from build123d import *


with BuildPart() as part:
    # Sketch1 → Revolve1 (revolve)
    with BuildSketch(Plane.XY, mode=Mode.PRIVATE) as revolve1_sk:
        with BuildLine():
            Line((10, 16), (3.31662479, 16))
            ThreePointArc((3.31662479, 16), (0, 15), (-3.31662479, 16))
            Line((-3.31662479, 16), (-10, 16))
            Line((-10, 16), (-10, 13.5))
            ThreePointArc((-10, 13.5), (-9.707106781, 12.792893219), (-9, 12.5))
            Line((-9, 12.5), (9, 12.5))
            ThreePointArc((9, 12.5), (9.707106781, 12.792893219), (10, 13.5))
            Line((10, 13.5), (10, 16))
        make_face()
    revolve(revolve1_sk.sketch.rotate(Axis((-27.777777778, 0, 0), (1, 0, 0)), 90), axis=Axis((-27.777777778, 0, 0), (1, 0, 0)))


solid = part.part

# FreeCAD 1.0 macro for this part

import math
import FreeCAD as App
import Part
import Sketcher
from FreeCAD import Vector

doc = App.newDocument("Part")
body = doc.addObject("PartDesign::Body", "Body")

# Sketch on XY plane
sketch1 = body.newObject("Sketcher::SketchObject", "Sketch")
sketch1.AttachmentSupport = (doc.getObject("XY_Plane"), [""])
sketch1.MapMode = "FlatFace"
sketch1.addGeometry(Part.LineSegment(Vector(10, 16, 0), Vector(3.3, 16, 0)), False)
sketch1.addGeometry(Part.ArcOfCircle(Part.Circle(Vector(0, 21, 0), Vector(0, 0, 1), 6), math.radians(-124), math.radians(-56)), False)
sketch1.addGeometry(Part.LineSegment(Vector(-3.3, 16, 0), Vector(-10, 16, 0)), False)
sketch1.addGeometry(Part.LineSegment(Vector(-10, 16, 0), Vector(-10, 13.5, 0)), False)
sketch1.addGeometry(Part.ArcOfCircle(Part.Circle(Vector(-9, 13.5, 0), Vector(0, 0, 1), 1), math.radians(-180), math.radians(-90)), False)
sketch1.addGeometry(Part.LineSegment(Vector(-9, 12.5, 0), Vector(9, 12.5, 0)), False)
sketch1.addGeometry(Part.ArcOfCircle(Part.Circle(Vector(9, 13.5, 0), Vector(0, 0, 1), 1), math.radians(-90), math.radians(0)), False)
sketch1.addGeometry(Part.LineSegment(Vector(10, 13.5, 0), Vector(10, 16, 0)), False)
sketch1.addConstraint(Sketcher.Constraint("Coincident", 0, 2, 1, 2))
sketch1.addConstraint(Sketcher.Constraint("Coincident", 1, 1, 2, 1))
sketch1.addConstraint(Sketcher.Constraint("Coincident", 2, 2, 3, 1))
sketch1.addConstraint(Sketcher.Constraint("Tangent", 3, 2, 4, 1))
sketch1.addConstraint(Sketcher.Constraint("Tangent", 4, 2, 5, 1))
sketch1.addConstraint(Sketcher.Constraint("Tangent", 5, 2, 6, 1))
sketch1.addConstraint(Sketcher.Constraint("Tangent", 6, 2, 7, 1))
sketch1.addConstraint(Sketcher.Constraint("Coincident", 7, 2, 0, 1))
sketch1.addConstraint(Sketcher.Constraint("Horizontal", 0))
sketch1.addConstraint(Sketcher.Constraint("Horizontal", 2))
sketch1.addConstraint(Sketcher.Constraint("Vertical", 3))
sketch1.addConstraint(Sketcher.Constraint("Horizontal", 5))
sketch1.addConstraint(Sketcher.Constraint("Vertical", 7))
sketch1.addConstraint(Sketcher.Constraint("Equal", 4, 6))
sketch1.addConstraint(Sketcher.Constraint("Symmetric", 0, 2, 1, 1, -2))
sketch1.addConstraint(Sketcher.Constraint("Equal", 0, 2))
sketch1.addConstraint(Sketcher.Constraint("Radius", 1, 6.0))
sketch1.addConstraint(Sketcher.Constraint("Radius", 4, 1.0))
sketch1.addConstraint(Sketcher.Constraint("DistanceX", 5, 1, 5, 2, 18.0))
sketch1.addConstraint(Sketcher.Constraint("DistanceY", 3, 2, 3, 1, 2.5))
sketch1.addConstraint(Sketcher.Constraint("DistanceY", -1, 1, 1, 3, 21.0))
sketch1.addConstraint(Sketcher.Constraint("DistanceY", -1, 1, 0, 2, 16.0))
revolution = body.newObject("PartDesign::Revolution", "Revolution")
revolution.Profile = sketch1
revolution.ReferenceAxis = (sketch1, ["H_Axis"])
revolution.Angle = 360

doc.recompute()
